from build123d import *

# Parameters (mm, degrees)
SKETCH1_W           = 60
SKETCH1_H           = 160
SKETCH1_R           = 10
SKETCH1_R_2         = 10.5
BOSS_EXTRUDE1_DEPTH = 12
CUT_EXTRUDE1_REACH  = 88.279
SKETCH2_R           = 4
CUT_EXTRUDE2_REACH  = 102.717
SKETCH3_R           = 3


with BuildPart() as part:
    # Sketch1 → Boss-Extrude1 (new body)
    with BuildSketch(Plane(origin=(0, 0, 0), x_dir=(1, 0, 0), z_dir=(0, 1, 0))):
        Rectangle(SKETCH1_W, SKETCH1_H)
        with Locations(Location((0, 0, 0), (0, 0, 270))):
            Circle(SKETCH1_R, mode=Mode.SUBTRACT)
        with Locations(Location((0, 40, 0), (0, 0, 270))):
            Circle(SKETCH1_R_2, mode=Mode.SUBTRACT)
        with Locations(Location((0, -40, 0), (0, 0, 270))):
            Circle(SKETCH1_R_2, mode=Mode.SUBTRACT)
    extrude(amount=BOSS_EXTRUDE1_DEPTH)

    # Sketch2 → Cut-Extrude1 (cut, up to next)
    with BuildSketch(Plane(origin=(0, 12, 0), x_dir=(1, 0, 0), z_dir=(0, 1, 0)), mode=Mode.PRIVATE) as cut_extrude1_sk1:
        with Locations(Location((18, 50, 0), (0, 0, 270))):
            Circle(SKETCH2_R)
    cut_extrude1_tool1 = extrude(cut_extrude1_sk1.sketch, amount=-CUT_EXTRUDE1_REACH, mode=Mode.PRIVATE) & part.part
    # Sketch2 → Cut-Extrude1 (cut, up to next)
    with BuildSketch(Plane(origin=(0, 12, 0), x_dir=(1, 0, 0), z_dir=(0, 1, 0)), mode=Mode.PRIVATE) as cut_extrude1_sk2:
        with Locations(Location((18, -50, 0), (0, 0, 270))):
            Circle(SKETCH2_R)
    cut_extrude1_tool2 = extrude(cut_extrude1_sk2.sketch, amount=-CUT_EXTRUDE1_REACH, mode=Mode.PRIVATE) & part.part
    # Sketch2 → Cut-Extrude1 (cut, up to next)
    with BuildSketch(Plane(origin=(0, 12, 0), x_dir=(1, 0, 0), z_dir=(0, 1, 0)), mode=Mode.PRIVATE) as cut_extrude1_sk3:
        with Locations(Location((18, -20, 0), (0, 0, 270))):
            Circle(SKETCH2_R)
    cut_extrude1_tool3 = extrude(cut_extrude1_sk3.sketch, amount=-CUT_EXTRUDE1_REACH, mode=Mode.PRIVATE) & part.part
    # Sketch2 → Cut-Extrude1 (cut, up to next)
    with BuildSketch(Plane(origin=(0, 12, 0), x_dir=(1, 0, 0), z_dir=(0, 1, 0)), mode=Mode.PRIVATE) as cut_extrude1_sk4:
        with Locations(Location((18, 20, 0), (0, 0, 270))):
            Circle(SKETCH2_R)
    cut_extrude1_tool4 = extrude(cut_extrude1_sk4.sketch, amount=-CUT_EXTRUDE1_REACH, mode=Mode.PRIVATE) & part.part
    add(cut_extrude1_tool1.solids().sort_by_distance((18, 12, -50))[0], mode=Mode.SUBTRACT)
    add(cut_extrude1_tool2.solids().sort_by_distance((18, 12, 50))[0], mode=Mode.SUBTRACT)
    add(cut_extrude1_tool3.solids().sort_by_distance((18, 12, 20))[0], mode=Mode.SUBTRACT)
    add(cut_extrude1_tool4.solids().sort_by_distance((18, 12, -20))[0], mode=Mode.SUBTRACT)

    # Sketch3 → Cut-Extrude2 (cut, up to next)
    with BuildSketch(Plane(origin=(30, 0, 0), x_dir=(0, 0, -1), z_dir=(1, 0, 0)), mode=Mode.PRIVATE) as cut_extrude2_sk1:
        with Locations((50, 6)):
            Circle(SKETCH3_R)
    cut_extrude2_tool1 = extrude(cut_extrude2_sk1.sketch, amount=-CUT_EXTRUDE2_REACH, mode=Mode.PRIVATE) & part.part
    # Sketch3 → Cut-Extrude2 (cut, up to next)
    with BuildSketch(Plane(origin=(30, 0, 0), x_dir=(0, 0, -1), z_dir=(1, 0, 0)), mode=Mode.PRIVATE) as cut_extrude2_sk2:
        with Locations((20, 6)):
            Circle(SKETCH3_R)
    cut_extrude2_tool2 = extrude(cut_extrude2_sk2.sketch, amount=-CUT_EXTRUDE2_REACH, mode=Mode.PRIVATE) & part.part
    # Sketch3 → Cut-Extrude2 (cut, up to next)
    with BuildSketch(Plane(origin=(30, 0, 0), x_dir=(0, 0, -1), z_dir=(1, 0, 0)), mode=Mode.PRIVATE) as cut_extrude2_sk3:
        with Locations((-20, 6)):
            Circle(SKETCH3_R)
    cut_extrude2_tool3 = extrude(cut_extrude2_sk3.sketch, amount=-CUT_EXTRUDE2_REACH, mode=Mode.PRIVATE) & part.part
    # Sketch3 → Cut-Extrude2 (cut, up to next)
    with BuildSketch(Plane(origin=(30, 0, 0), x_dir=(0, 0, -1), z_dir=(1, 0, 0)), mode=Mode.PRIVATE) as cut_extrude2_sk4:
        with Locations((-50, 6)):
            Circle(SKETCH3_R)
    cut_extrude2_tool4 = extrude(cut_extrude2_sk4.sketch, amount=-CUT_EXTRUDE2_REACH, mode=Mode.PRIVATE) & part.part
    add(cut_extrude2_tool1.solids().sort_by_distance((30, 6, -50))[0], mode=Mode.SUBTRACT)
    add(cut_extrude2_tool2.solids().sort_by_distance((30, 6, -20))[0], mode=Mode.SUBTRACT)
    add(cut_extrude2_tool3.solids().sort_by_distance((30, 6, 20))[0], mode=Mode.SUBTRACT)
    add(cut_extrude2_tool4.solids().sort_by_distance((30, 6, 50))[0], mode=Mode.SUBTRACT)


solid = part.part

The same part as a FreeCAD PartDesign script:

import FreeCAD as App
import Part
import Sketcher

doc = App.newDocument("Part")
params = doc.addObject("Spreadsheet::Sheet", "Params")
for row, (alias, value) in enumerate([
    ("sketch1_diameter", "21 mm"),
    ("sketch1_diameter2", "20 mm"),
    ("sketch1_width", "60 mm"),
    ("sketch1_height", "160 mm"),
    ("pad1_length", "12 mm"),
    ("sketch2_diameter", "8 mm"),
    ("sketch3_diameter", "8 mm"),
    ("sketch4_diameter", "8 mm"),
    ("sketch5_diameter", "8 mm"),
    ("sketch6_diameter", "6 mm"),
    ("pocket5_length", "9.354249 mm"),
    ("sketch7_diameter", "6 mm"),
    ("pocket6_length", "9.354249 mm"),
    ("sketch8_diameter", "6 mm"),
    ("pocket7_length", "9.354249 mm"),
    ("sketch9_diameter", "6 mm"),
    ("pocket8_length", "9.354249 mm"),
], start=1):
    params.set(f"A{row}", alias)
    params.set(f"B{row}", "=" + value)
    params.setAlias(f"B{row}", alias)

body = doc.addObject("PartDesign::Body", "Body")

sketch1 = doc.addObject("Sketcher::SketchObject", "Sketch")
body.addObject(sketch1)
sketch1.AttachmentSupport = (doc.XZ_Plane, [""])
sketch1.MapMode = "FlatFace"
sketch1.addGeometry([
    Part.LineSegment(App.Vector(-30, -80, 0), App.Vector(-30, 80, 0)),
    Part.LineSegment(App.Vector(-30, 80, 0), App.Vector(30, 80, 0)),
    Part.LineSegment(App.Vector(30, 80, 0), App.Vector(30, -80, 0)),
    Part.LineSegment(App.Vector(30, -80, 0), App.Vector(-30, -80, 0)),
    Part.Circle(App.Vector(0, 40, 0), App.Vector(0, 0, 1), 10),
    Part.Circle(App.Vector(0, 0, 0), App.Vector(0, 0, 1), 10),
    Part.Circle(App.Vector(0, -40, 0), App.Vector(0, 0, 1), 10),
], False)
sketch1.addConstraint([
    Sketcher.Constraint("Coincident", 0, 2, 1, 1),
    Sketcher.Constraint("Coincident", 1, 2, 2, 1),
    Sketcher.Constraint("Coincident", 2, 2, 3, 1),
    Sketcher.Constraint("Coincident", 3, 2, 0, 1),
    Sketcher.Constraint("Vertical", 0),
    Sketcher.Constraint("Horizontal", 1),
    Sketcher.Constraint("Vertical", 2),
    Sketcher.Constraint("Horizontal", 3),
    Sketcher.Constraint("Coincident", 5, 3, -1, 1),
    Sketcher.Constraint("Equal", 4, 6),
    Sketcher.Constraint("Symmetric", 4, 3, 6, 3, -1, 1),
    Sketcher.Constraint("Symmetric", 0, 2, 2, 2, -1, 1),
    Sketcher.Constraint("PointOnObject", 4, 3, -2),
    Sketcher.Constraint("Diameter", 4, 21.0),
    Sketcher.Constraint("Diameter", 5, 20.0),
    Sketcher.Constraint("DistanceX", 1, 1, 1, 2, 60.0),
    Sketcher.Constraint("DistanceY", 0, 1, 0, 2, 160.0),
    Sketcher.Constraint("DistanceY", -1, 1, 4, 3, 40.0),
])
sketch1.setExpression("Constraints[13]", "Params.sketch1_diameter")
sketch1.setExpression("Constraints[14]", "Params.sketch1_diameter2")
sketch1.setExpression("Constraints[15]", "Params.sketch1_width")
sketch1.setExpression("Constraints[16]", "Params.sketch1_height")
pad1 = doc.addObject("PartDesign::Pad", "Pad")
body.addObject(pad1)
pad1.Profile = sketch1
pad1.setExpression("Length", "Params.pad1_length")
pad1.Reversed = True

sketch2 = doc.addObject("Sketcher::SketchObject", "Sketch001")
body.addObject(sketch2)
sketch2.AttachmentSupport = (doc.XZ_Plane, [""])
sketch2.MapMode = "FlatFace"
sketch2.AttachmentOffset = App.Placement(App.Vector(0, 0, -12), App.Rotation())
sketch2.addGeometry(Part.Circle(App.Vector(18, -50, 0), App.Vector(0, 0, 1), 4), False)
sketch2.addConstraint([
    Sketcher.Constraint("Diameter", 0, 8.0),
    Sketcher.Constraint("DistanceX", -1, 1, 0, 3, 18.0),
    Sketcher.Constraint("DistanceY", 0, 3, -1, 1, 50.0),
])
sketch2.setExpression("Constraints[0]", "Params.sketch2_diameter")
pocket1 = doc.addObject("PartDesign::Pocket", "Pocket")
body.addObject(pocket1)
pocket1.Profile = sketch2
pocket1.Type = "UpToFirst"
pocket1.Reversed = True

sketch3 = doc.addObject("Sketcher::SketchObject", "Sketch002")
body.addObject(sketch3)
sketch3.AttachmentSupport = (doc.XZ_Plane, [""])
sketch3.MapMode = "FlatFace"
sketch3.AttachmentOffset = App.Placement(App.Vector(0, 0, -12), App.Rotation())
sketch3.addGeometry(Part.Circle(App.Vector(18, 50, 0), App.Vector(0, 0, 1), 4), False)
sketch3.addConstraint([
    Sketcher.Constraint("Diameter", 0, 8.0),
    Sketcher.Constraint("DistanceX", -1, 1, 0, 3, 18.0),
    Sketcher.Constraint("DistanceY", -1, 1, 0, 3, 50.0),
])
sketch3.setExpression("Constraints[0]", "Params.sketch3_diameter")
pocket2 = doc.addObject("PartDesign::Pocket", "Pocket001")
body.addObject(pocket2)
pocket2.Profile = sketch3
pocket2.Type = "UpToFirst"
pocket2.Reversed = True

sketch4 = doc.addObject("Sketcher::SketchObject", "Sketch003")
body.addObject(sketch4)
sketch4.AttachmentSupport = (doc.XZ_Plane, [""])
sketch4.MapMode = "FlatFace"
sketch4.AttachmentOffset = App.Placement(App.Vector(0, 0, -12), App.Rotation())
sketch4.addGeometry(Part.Circle(App.Vector(18, 20, 0), App.Vector(0, 0, 1), 4), False)
sketch4.addConstraint([
    Sketcher.Constraint("Diameter", 0, 8.0),
    Sketcher.Constraint("DistanceX", -1, 1, 0, 3, 18.0),
    Sketcher.Constraint("DistanceY", -1, 1, 0, 3, 20.0),
])
sketch4.setExpression("Constraints[0]", "Params.sketch4_diameter")
pocket3 = doc.addObject("PartDesign::Pocket", "Pocket002")
body.addObject(pocket3)
pocket3.Profile = sketch4
pocket3.Type = "UpToFirst"
pocket3.Reversed = True

sketch5 = doc.addObject("Sketcher::SketchObject", "Sketch004")
body.addObject(sketch5)
sketch5.AttachmentSupport = (doc.XZ_Plane, [""])
sketch5.MapMode = "FlatFace"
sketch5.AttachmentOffset = App.Placement(App.Vector(0, 0, -12), App.Rotation())
sketch5.addGeometry(Part.Circle(App.Vector(18, -20, 0), App.Vector(0, 0, 1), 4), False)
sketch5.addConstraint([
    Sketcher.Constraint("Diameter", 0, 8.0),
    Sketcher.Constraint("DistanceX", -1, 1, 0, 3, 18.0),
    Sketcher.Constraint("DistanceY", 0, 3, -1, 1, 20.0),
])
sketch5.setExpression("Constraints[0]", "Params.sketch5_diameter")
pocket4 = doc.addObject("PartDesign::Pocket", "Pocket003")
body.addObject(pocket4)
pocket4.Profile = sketch5
pocket4.Type = "UpToFirst"
pocket4.Reversed = True

sketch6 = doc.addObject("Sketcher::SketchObject", "Sketch005")
body.addObject(sketch6)
sketch6.AttachmentSupport = (doc.YZ_Plane, [""])
sketch6.MapMode = "FlatFace"
sketch6.AttachmentOffset = App.Placement(App.Vector(0, 0, 30), App.Rotation())
sketch6.addGeometry(Part.Circle(App.Vector(6, -50, 0), App.Vector(0, 0, 1), 3), False)
sketch6.addConstraint([
    Sketcher.Constraint("Diameter", 0, 6.0),
    Sketcher.Constraint("DistanceX", -1, 1, 0, 3, 6.0),
    Sketcher.Constraint("DistanceY", 0, 3, -1, 1, 50.0),
])
sketch6.setExpression("Constraints[0]", "Params.sketch6_diameter")
pocket5 = doc.addObject("PartDesign::Pocket", "Pocket004")
body.addObject(pocket5)
pocket5.Profile = sketch6
pocket5.setExpression("Length", "Params.pocket5_length")

sketch7 = doc.addObject("Sketcher::SketchObject", "Sketch006")
body.addObject(sketch7)
sketch7.AttachmentSupport = (doc.YZ_Plane, [""])
sketch7.MapMode = "FlatFace"
sketch7.AttachmentOffset = App.Placement(App.Vector(0, 0, 30), App.Rotation())
sketch7.addGeometry(Part.Circle(App.Vector(6, -20, 0), App.Vector(0, 0, 1), 3), False)
sketch7.addConstraint([
    Sketcher.Constraint("Diameter", 0, 6.0),
    Sketcher.Constraint("DistanceX", -1, 1, 0, 3, 6.0),
    Sketcher.Constraint("DistanceY", 0, 3, -1, 1, 20.0),
])
sketch7.setExpression("Constraints[0]", "Params.sketch7_diameter")
pocket6 = doc.addObject("PartDesign::Pocket", "Pocket005")
body.addObject(pocket6)
pocket6.Profile = sketch7
pocket6.setExpression("Length", "Params.pocket6_length")

sketch8 = doc.addObject("Sketcher::SketchObject", "Sketch007")
body.addObject(sketch8)
sketch8.AttachmentSupport = (doc.YZ_Plane, [""])
sketch8.MapMode = "FlatFace"
sketch8.AttachmentOffset = App.Placement(App.Vector(0, 0, 30), App.Rotation())
sketch8.addGeometry(Part.Circle(App.Vector(6, 20, 0), App.Vector(0, 0, 1), 3), False)
sketch8.addConstraint([
    Sketcher.Constraint("Diameter", 0, 6.0),
    Sketcher.Constraint("DistanceX", -1, 1, 0, 3, 6.0),
    Sketcher.Constraint("DistanceY", -1, 1, 0, 3, 20.0),
])
sketch8.setExpression("Constraints[0]", "Params.sketch8_diameter")
pocket7 = doc.addObject("PartDesign::Pocket", "Pocket006")
body.addObject(pocket7)
pocket7.Profile = sketch8
pocket7.setExpression("Length", "Params.pocket7_length")

sketch9 = doc.addObject("Sketcher::SketchObject", "Sketch008")
body.addObject(sketch9)
sketch9.AttachmentSupport = (doc.YZ_Plane, [""])
sketch9.MapMode = "FlatFace"
sketch9.AttachmentOffset = App.Placement(App.Vector(0, 0, 30), App.Rotation())
sketch9.addGeometry(Part.Circle(App.Vector(6, 50, 0), App.Vector(0, 0, 1), 3), False)
sketch9.addConstraint([
    Sketcher.Constraint("Diameter", 0, 6.0),
    Sketcher.Constraint("DistanceX", -1, 1, 0, 3, 6.0),
    Sketcher.Constraint("DistanceY", -1, 1, 0, 3, 50.0),
])
sketch9.setExpression("Constraints[0]", "Params.sketch9_diameter")
pocket8 = doc.addObject("PartDesign::Pocket", "Pocket007")
body.addObject(pocket8)
pocket8.Profile = sketch9
pocket8.setExpression("Length", "Params.pocket8_length")

doc.recompute()
